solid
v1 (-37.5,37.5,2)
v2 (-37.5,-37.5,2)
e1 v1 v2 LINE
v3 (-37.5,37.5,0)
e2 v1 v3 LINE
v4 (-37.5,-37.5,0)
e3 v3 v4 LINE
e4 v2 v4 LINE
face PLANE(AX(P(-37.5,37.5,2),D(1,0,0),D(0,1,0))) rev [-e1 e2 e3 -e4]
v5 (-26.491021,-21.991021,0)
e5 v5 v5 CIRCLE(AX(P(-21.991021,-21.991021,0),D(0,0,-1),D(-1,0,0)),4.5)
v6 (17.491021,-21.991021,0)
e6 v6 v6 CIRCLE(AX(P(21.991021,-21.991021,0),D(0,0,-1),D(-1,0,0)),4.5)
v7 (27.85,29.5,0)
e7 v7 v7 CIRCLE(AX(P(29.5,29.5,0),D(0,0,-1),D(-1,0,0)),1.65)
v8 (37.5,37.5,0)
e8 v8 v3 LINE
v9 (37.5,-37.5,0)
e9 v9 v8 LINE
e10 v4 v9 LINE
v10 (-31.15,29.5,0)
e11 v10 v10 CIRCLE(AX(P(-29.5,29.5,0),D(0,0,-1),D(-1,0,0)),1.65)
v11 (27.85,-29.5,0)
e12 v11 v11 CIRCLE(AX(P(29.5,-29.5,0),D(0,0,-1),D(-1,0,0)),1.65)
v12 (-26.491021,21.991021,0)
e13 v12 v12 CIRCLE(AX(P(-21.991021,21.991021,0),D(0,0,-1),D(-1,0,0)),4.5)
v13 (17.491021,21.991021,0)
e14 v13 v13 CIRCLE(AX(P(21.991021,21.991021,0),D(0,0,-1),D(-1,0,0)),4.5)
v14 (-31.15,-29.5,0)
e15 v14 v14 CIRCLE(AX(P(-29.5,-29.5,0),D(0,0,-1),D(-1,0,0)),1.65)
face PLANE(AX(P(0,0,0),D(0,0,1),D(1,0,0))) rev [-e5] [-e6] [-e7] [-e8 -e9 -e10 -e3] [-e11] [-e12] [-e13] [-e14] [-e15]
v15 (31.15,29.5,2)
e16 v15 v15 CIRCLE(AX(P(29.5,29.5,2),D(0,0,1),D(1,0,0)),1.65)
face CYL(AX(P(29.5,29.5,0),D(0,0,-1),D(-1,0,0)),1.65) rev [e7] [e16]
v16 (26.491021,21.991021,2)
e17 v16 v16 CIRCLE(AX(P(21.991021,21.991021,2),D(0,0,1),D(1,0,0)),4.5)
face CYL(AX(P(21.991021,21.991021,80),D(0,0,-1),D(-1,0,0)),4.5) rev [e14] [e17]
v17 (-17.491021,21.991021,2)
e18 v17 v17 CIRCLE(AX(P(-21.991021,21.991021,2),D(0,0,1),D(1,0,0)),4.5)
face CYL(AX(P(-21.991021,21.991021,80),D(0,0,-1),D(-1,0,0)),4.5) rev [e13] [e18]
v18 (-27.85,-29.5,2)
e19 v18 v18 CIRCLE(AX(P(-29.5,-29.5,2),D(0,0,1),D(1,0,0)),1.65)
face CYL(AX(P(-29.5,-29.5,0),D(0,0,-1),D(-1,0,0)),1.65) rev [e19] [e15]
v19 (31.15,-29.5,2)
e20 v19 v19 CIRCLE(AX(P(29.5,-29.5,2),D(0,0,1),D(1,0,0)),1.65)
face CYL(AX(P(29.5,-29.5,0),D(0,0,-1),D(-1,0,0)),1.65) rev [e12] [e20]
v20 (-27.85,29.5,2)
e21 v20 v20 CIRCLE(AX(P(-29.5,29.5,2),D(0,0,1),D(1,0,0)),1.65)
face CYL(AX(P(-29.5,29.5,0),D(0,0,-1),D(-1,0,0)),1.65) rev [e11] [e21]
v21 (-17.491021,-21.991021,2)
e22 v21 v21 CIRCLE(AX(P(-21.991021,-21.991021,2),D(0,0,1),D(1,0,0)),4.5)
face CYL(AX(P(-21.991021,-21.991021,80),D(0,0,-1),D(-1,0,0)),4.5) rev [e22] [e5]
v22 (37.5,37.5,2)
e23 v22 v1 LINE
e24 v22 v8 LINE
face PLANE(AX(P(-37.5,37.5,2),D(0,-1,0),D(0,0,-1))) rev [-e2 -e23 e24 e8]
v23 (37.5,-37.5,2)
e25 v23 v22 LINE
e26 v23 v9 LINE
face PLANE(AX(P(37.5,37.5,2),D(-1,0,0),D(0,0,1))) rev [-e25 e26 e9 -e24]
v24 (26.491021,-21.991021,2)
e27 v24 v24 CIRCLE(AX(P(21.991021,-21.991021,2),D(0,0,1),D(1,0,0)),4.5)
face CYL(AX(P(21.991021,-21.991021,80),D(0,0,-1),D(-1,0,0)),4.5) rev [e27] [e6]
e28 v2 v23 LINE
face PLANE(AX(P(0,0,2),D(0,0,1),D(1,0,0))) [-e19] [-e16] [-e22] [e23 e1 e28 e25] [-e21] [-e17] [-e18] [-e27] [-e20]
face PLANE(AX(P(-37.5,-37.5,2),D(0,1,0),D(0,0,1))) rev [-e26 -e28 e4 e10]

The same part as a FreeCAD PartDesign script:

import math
import FreeCAD as App
import Part
import Sketcher
Q = App.Units.Quantity


def add_polygon(sketch, points):
    """Adds a closed chain of lines whose ends are joined by coincident constraints."""
    first, n = sketch.GeometryCount, len(points)
    for a, b in zip(points, points[1:] + points[:1]):
        sketch.addGeometry(Part.LineSegment(App.Vector(*a, 0), App.Vector(*b, 0)), False)
    for i in range(n):
        sketch.addConstraint(Sketcher.Constraint("Coincident", first + i, 2, first + (i + 1) % n, 1))

doc = App.newDocument("Part")
params = doc.addObject("Spreadsheet::Sheet", "Params")
for row, (alias, value) in enumerate([
    ("sketch1_width", "75 mm"),
    ("pad1_length", "2 mm"),
    ("sketch2_diameter", "3.3 mm"),
    ("hole_diameter", "3.3 mm"),
    ("hole_depth", "11.5 mm"),
    ("sketch3_radius", "4.5 mm"),
    ("pocket1_length", "80 mm"),
], start=1):
    params.set(f"A{row}", alias)
    params.set(f"B{row}", "=" + value)
    params.setAlias(f"B{row}", alias)

body = doc.addObject("PartDesign::Body", "Body")

sketch1 = body.newObject("Sketcher::SketchObject", "Sketch")
sketch1.AttachmentSupport = (doc.getObject("XY_Plane"), [""])
sketch1.MapMode = "FlatFace"
add_polygon(sketch1, [(-38, 38), (-38, -38), (38, -38), (38, 38)])
sketch1.addConstraint(Sketcher.Constraint("Vertical", 0))
sketch1.addConstraint(Sketcher.Constraint("Horizontal", 1))
sketch1.addConstraint(Sketcher.Constraint("Vertical", 2))
sketch1.addConstraint(Sketcher.Constraint("Horizontal", 3))
sketch1.addConstraint(Sketcher.Constraint("Symmetric", 0, 2, 2, 2, -1, 1))
sketch1.addConstraint(Sketcher.Constraint("Equal", 3, 0))
sketch1.addConstraint(Sketcher.Constraint("DistanceX", 1, 1, 1, 2, Q("75 mm")))
sketch1.setExpression("Constraints[10]", "Params.sketch1_width")
pad1 = body.newObject("PartDesign::Pad", "Pad")
pad1.Profile = sketch1
pad1.setExpression("Length", "Params.pad1_length")

sketch2 = body.newObject("Sketcher::SketchObject", "Sketch001")
sketch2.AttachmentSupport = (doc.getObject("XY_Plane"), [""])
sketch2.MapMode = "FlatFace"
sketch2.addGeometry(Part.Circle(App.Vector(-29.5, -29.5, 0), App.Vector(0, 0, 1), 1.6), False)
sketch2.addGeometry(Part.Circle(App.Vector(-29.5, 29.5, 0), App.Vector(0, 0, 1), 1.6), False)
sketch2.addGeometry(Part.Circle(App.Vector(29.5, 29.5, 0), App.Vector(0, 0, 1), 1.6), False)
sketch2.addGeometry(Part.Circle(App.Vector(29.5, -29.5, 0), App.Vector(0, 0, 1), 1.6), False)
sketch2.addConstraint(Sketcher.Constraint("Equal", 0, 1))
sketch2.addConstraint(Sketcher.Constraint("Equal", 1, 2))
sketch2.addConstraint(Sketcher.Constraint("Equal", 2, 3))
sketch2.addConstraint(Sketcher.Constraint("Symmetric", 0, 3, 2, 3, -1, 1))
sketch2.addConstraint(Sketcher.Constraint("Symmetric", 1, 3, 3, 3, -1, 1))
sketch2.addConstraint(Sketcher.Constraint("Symmetric", 1, 3, 2, 3, -2))
sketch2.addConstraint(Sketcher.Constraint("Diameter", 0, Q("3.3 mm")))
sketch2.addConstraint(Sketcher.Constraint("DistanceY", 0, 3, 1, 3, Q("59 mm")))
sketch2.addConstraint(Sketcher.Constraint("DistanceX", 1, 3, 2, 3, Q("59 mm")))
sketch2.setExpression("Constraints[6]", "Params.sketch2_diameter")
doc.recompute()
hole = body.newObject("PartDesign::Hole", "Hole")
hole.Profile = sketch2
hole.ThreadType = "None"
hole.setExpression("Diameter", "Params.hole_diameter")
hole.DepthType = "Dimension"
hole.setExpression("Depth", "Params.hole_depth")
hole.DrillPoint = "Angled"
hole.DrillPointAngle = 118
hole.Reversed = True

sketch3 = body.newObject("Sketcher::SketchObject", "Sketch002")
sketch3.AttachmentSupport = (doc.getObject("XY_Plane"), [""])
sketch3.MapMode = "FlatFace"
sketch3.addGeometry(Part.ArcOfCircle(Part.Circle(App.Vector(-22, -22, 0), App.Vector(0, 0, 1), 4.5), math.radians(0), math.radians(90)), False)
sketch3.addGeometry(Part.ArcOfCircle(Part.Circle(App.Vector(-22, -22, 0), App.Vector(0, 0, 1), 4.5), math.radians(180), math.radians(360)), False)
sketch3.addGeometry(Part.ArcOfCircle(Part.Circle(App.Vector(-22, -22, 0), App.Vector(0, 0, 1), 4.5), math.radians(90), math.radians(180)), False)
sketch3.addGeometry(Part.ArcOfCircle(Part.Circle(App.Vector(-22, 22, 0), App.Vector(0, 0, 1), 4.5), math.radians(-90), math.radians(0)), False)
sketch3.addGeometry(Part.ArcOfCircle(Part.Circle(App.Vector(-22, 22, 0), App.Vector(0, 0, 1), 4.5), math.radians(-180), math.radians(-90)), False)
sketch3.addGeometry(Part.ArcOfCircle(Part.Circle(App.Vector(-22, 22, 0), App.Vector(0, 0, 1), 4.5), math.radians(0), math.radians(180)), False)
sketch3.addGeometry(Part.ArcOfCircle(Part.Circle(App.Vector(22, 22, 0), App.Vector(0, 0, 1), 4.5), math.radians(-90), math.radians(180)), False)
sketch3.addGeometry(Part.ArcOfCircle(Part.Circle(App.Vector(22, 22, 0), App.Vector(0, 0, 1), 4.5), math.radians(-180), math.radians(-90)), False)
sketch3.addGeometry(Part.ArcOfCircle(Part.Circle(App.Vector(22, -22, 0), App.Vector(0, 0, 1), 4.5), math.radians(90), math.radians(135)), False)
sketch3.addGeometry(Part.ArcOfCircle(Part.Circle(App.Vector(22, -22, 0), App.Vector(0, 0, 1), 4.5), math.radians(180), math.radians(450)), False)
sketch3.addGeometry(Part.ArcOfCircle(Part.Circle(App.Vector(22, -22, 0), App.Vector(0, 0, 1), 4.5), math.radians(135), math.radians(180)), False)
sketch3.addConstraint(Sketcher.Constraint("Tangent", 0, 1, 1, 2))
sketch3.addConstraint(Sketcher.Constraint("Tangent", 1, 1, 2, 2))
sketch3.addConstraint(Sketcher.Constraint("Tangent", 2, 1, 0, 2))
sketch3.addConstraint(Sketcher.Constraint("Tangent", 3, 1, 4, 2))
sketch3.addConstraint(Sketcher.Constraint("Tangent", 4, 1, 5, 2))
sketch3.addConstraint(Sketcher.Constraint("Tangent", 5, 1, 3, 2))
sketch3.addConstraint(Sketcher.Constraint("Tangent", 6, 1, 7, 2))
sketch3.addConstraint(Sketcher.Constraint("Coincident", 7, 1, 6, 2))
sketch3.addConstraint(Sketcher.Constraint("Tangent", 8, 1, 9, 2))
sketch3.addConstraint(Sketcher.Constraint("Tangent", 9, 1, 10, 2))
sketch3.addConstraint(Sketcher.Constraint("Tangent", 10, 1, 8, 2))
sketch3.addConstraint(Sketcher.Constraint("Equal", 2, 3))
sketch3.addConstraint(Sketcher.Constraint("Equal", 5, 6))
sketch3.addConstraint(Sketcher.Constraint("Equal", 7, 8))
sketch3.addConstraint(Sketcher.Constraint("Symmetric", 0, 3, 6, 3, -1, 1))
sketch3.addConstraint(Sketcher.Constraint("Symmetric", 3, 3, 8, 3, -1, 1))
sketch3.addConstraint(Sketcher.Constraint("Symmetric", 3, 3, 6, 3, -2))
sketch3.addConstraint(Sketcher.Constraint("Horizontal", 10, 3, 0, 1))
sketch3.addConstraint(Sketcher.Constraint("Horizontal", 0, 1, 1, 1))
sketch3.addConstraint(Sketcher.Constraint("Horizontal", 7, 3, 4, 1))
sketch3.addConstraint(Sketcher.Constraint("Horizontal", 4, 1, 5, 1))
sketch3.addConstraint(Sketcher.Constraint("Horizontal", 5, 1, 7, 1))
sketch3.addConstraint(Sketcher.Constraint("Horizontal", 1, 1, 9, 1))
sketch3.addConstraint(Sketcher.Constraint("Vertical", 5, 3, 2, 1))
sketch3.addConstraint(Sketcher.Constraint("Vertical", 2, 1, 3, 1))
sketch3.addConstraint(Sketcher.Constraint("Vertical", 10, 3, 6, 1))
sketch3.addConstraint(Sketcher.Constraint("Vertical", 6, 1, 8, 1))
sketch3.addConstraint(Sketcher.Constraint("Radius", 0, Q("4.5 mm")))
sketch3.addConstraint(Sketcher.Constraint("DistanceX", 0, 3, -1, 1, Q("21.991021 mm")))
sketch3.addConstraint(Sketcher.Constraint("DistanceY", 0, 3, -1, 1, Q("21.991021 mm")))
sketch3.addConstraint(Sketcher.Constraint("DistanceX", -1, 1, 10, 1, Q("18.80904 mm")))
sketch3.setExpression("Constraints[27]", "Params.sketch3_radius")
pocket1 = body.newObject("PartDesign::Pocket", "Pocket")
pocket1.Profile = sketch3
pocket1.setExpression("Length", "Params.pocket1_length")
pocket1.Reversed = True

doc.recompute()
